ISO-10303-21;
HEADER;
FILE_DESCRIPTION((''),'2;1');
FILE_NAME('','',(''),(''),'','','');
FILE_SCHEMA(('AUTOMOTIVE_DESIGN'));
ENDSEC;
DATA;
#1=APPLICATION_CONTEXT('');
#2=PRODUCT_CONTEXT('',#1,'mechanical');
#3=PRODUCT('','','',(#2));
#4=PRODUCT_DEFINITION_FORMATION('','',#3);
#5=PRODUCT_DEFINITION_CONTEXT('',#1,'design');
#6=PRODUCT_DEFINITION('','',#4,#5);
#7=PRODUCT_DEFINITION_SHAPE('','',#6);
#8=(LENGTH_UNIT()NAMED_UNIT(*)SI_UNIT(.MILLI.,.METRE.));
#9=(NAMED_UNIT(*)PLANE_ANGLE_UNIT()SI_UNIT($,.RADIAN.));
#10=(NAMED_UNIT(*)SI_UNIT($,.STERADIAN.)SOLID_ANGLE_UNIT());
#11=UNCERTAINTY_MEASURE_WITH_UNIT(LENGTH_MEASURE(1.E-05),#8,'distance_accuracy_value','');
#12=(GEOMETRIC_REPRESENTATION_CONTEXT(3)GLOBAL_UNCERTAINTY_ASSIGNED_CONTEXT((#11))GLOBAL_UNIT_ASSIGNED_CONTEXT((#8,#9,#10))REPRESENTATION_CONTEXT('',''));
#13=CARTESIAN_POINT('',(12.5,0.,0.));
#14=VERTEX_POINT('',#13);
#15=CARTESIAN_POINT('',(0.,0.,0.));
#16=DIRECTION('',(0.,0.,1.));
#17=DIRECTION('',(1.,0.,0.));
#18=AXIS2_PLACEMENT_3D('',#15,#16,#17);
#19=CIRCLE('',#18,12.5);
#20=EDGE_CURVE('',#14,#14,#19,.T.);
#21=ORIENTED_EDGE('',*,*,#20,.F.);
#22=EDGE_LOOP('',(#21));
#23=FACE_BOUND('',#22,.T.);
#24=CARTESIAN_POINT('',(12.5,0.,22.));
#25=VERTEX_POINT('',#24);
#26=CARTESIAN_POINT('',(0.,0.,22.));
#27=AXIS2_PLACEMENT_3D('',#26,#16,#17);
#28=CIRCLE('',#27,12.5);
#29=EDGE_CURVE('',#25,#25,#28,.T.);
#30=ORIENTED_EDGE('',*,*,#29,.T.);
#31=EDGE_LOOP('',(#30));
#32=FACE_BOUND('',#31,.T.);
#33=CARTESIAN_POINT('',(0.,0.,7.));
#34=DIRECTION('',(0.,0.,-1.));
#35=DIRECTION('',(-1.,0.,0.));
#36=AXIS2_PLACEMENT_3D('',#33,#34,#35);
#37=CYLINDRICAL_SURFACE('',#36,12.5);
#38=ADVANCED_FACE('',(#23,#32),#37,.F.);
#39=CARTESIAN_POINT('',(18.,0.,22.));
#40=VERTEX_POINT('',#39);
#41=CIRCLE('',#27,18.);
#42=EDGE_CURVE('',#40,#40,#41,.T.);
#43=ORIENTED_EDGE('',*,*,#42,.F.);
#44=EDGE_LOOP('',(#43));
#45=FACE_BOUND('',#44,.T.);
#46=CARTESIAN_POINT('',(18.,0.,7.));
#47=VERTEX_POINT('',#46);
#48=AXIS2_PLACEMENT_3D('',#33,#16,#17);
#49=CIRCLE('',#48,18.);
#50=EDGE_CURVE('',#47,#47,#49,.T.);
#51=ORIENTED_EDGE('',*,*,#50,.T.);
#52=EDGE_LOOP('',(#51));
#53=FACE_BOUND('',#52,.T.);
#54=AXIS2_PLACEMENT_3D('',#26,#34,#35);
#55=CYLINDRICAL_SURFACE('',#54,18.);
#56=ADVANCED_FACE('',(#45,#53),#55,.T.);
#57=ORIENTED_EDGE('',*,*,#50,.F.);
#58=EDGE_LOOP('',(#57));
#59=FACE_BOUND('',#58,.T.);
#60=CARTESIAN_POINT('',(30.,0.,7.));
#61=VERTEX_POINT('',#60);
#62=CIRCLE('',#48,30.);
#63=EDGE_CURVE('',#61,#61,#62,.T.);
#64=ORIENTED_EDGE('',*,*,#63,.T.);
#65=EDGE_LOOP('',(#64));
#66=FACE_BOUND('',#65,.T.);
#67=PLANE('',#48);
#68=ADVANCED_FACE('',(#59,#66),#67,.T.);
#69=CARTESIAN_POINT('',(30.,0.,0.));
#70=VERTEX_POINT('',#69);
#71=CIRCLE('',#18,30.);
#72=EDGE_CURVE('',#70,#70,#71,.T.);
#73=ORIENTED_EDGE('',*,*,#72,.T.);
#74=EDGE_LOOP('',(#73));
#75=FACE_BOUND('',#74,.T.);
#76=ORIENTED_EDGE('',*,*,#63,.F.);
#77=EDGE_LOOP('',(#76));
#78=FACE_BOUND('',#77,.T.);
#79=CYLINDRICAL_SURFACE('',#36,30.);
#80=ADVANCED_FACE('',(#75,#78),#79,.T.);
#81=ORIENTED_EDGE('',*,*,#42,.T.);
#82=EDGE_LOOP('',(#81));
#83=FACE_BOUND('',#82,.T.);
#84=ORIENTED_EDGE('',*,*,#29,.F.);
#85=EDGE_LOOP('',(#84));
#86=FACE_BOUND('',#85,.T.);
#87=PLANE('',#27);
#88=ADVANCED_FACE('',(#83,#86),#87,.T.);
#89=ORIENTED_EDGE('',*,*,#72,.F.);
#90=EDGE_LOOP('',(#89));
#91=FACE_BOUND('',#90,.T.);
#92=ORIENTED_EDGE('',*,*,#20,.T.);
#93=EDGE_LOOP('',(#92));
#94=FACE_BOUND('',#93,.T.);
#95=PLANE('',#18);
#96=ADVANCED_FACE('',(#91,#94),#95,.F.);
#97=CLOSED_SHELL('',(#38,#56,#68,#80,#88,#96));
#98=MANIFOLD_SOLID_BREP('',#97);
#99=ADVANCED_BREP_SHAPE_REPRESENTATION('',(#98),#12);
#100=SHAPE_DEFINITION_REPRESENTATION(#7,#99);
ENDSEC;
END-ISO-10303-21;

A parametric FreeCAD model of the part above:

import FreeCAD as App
import Part
import Sketcher
from FreeCAD import Vector
Q = App.Units.Quantity

doc = App.newDocument("Part")
params = doc.addObject("Spreadsheet::Sheet", "Params")
for row, (alias, value) in enumerate([
    ("sketch1_diameter", "60 mm"),
    ("sketch1_diameter2", "25 mm"),
    ("pad1_length", "7 mm"),
    ("sketch2_diameter", "36 mm"),
    ("sketch2_diameter2", "25 mm"),
    ("pad2_length", "15 mm"),
], start=1):
    params.set(f"A{row}", alias)
    params.set(f"B{row}", "=" + value)
    params.setAlias(f"B{row}", alias)

body = doc.addObject("PartDesign::Body", "Body")

sketch1 = body.newObject("Sketcher::SketchObject", "Sketch")
sketch1.AttachmentSupport = (doc.getObject("XY_Plane"), [""])
sketch1.MapMode = "FlatFace"
sketch1.addGeometry(Part.Circle(Vector(0, 0, 0), Vector(0, 0, 1), 30), False)
sketch1.addGeometry(Part.Circle(Vector(0, 0, 0), Vector(0, 0, 1), 12), False)
sketch1.addConstraint(Sketcher.Constraint("Coincident", 0, 3, -1, 1))
sketch1.addConstraint(Sketcher.Constraint("Coincident", 1, 3, -1, 1))
sketch1.addConstraint(Sketcher.Constraint("Diameter", 0, Q("60 mm")))
sketch1.addConstraint(Sketcher.Constraint("Diameter", 1, Q("25 mm")))
sketch1.setExpression("Constraints[2]", "Params.sketch1_diameter")
sketch1.setExpression("Constraints[3]", "Params.sketch1_diameter2")
pad1 = body.newObject("PartDesign::Pad", "Pad")
pad1.Profile = sketch1
pad1.setExpression("Length", "Params.pad1_length")

sketch2 = body.newObject("Sketcher::SketchObject", "Sketch001")
sketch2.AttachmentSupport = (doc.getObject("XY_Plane"), [""])
sketch2.MapMode = "FlatFace"
sketch2.AttachmentOffset = App.Placement(Vector(0, 0, 7), App.Rotation())
sketch2.addGeometry(Part.Circle(Vector(0, 0, 0), Vector(0, 0, 1), 18), False)
sketch2.addGeometry(Part.Circle(Vector(0, 0, 0), Vector(0, 0, 1), 12), False)
sketch2.addConstraint(Sketcher.Constraint("Coincident", 0, 3, -1, 1))
sketch2.addConstraint(Sketcher.Constraint("Coincident", 1, 3, -1, 1))
sketch2.addConstraint(Sketcher.Constraint("Diameter", 0, Q("36 mm")))
sketch2.addConstraint(Sketcher.Constraint("Diameter", 1, Q("25 mm")))
sketch2.setExpression("Constraints[2]", "Params.sketch2_diameter")
sketch2.setExpression("Constraints[3]", "Params.sketch2_diameter2")
pad2 = body.newObject("PartDesign::Pad", "Pad001")
pad2.Profile = sketch2
pad2.setExpression("Length", "Params.pad2_length")

doc.recompute()
